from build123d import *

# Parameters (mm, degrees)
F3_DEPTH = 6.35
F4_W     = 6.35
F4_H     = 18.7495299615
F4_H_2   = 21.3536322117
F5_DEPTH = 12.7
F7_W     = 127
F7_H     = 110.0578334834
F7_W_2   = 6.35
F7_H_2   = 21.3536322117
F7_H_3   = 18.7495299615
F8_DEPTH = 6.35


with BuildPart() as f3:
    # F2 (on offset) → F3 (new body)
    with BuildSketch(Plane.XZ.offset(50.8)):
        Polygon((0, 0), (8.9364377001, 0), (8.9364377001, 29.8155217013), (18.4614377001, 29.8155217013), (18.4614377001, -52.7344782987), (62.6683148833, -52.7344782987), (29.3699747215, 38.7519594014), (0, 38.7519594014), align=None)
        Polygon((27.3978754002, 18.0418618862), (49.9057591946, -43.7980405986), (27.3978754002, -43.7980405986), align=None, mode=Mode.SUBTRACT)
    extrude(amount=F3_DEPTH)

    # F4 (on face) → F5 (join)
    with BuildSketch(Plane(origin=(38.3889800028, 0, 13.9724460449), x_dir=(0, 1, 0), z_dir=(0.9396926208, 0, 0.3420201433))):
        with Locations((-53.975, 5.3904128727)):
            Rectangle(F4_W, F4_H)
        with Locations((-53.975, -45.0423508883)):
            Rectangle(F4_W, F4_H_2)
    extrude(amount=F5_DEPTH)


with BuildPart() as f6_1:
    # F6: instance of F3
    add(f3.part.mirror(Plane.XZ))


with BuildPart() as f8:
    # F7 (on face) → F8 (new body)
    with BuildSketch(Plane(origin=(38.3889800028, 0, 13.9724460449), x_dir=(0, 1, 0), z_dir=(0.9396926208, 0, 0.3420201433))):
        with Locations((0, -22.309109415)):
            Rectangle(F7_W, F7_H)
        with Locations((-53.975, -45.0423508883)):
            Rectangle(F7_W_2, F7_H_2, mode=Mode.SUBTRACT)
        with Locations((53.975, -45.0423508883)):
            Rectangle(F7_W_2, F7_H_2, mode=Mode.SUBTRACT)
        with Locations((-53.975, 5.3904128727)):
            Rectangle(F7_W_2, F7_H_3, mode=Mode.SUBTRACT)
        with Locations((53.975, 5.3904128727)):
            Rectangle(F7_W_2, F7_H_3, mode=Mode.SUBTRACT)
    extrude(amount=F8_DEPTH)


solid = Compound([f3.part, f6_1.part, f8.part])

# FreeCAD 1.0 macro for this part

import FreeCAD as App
import Part
import Sketcher
from FreeCAD import Vector
Q = App.Units.Quantity

doc = App.newDocument("Part")
body = doc.addObject("PartDesign::Body", "Body")

# Sketch on XZ plane
sketch1 = doc.addObject("Sketcher::SketchObject", "Sketch")
body.addObject(sketch1)
sketch1.AttachmentSupport = (doc.XZ_Plane, [""])
sketch1.MapMode = "FlatFace"
sketch1.AttachmentOffset = App.Placement(Vector(0, 0, 2 * 25.4), App.Rotation())
sketch1.addGeometry([
    Part.LineSegment(Vector(0, 0, 0), Vector(9, 0, 0)),  # 0
    Part.LineSegment(Vector(9, 0, 0), Vector(9, 30, 0)),  # 1
    Part.LineSegment(Vector(9, 30, 0), Vector(18, 30, 0)),  # 2
    Part.LineSegment(Vector(18, 30, 0), Vector(18, -53, 0)),  # 3
    Part.LineSegment(Vector(18, -53, 0), Vector(63, -53, 0)),  # 4
    Part.LineSegment(Vector(63, -53, 0), Vector(29, 39, 0)),  # 5
    Part.LineSegment(Vector(29, 39, 0), Vector(0, 39, 0)),  # 6
    Part.LineSegment(Vector(0, 39, 0), Vector(0, 0, 0)),  # 7
    Part.LineSegment(Vector(27, -44, 0), Vector(27, 18, 0)),  # 8
    Part.LineSegment(Vector(27, 18, 0), Vector(50, -44, 0)),  # 9
    Part.LineSegment(Vector(50, -44, 0), Vector(27, -44, 0)),  # 10
], False)
sketch1.addConstraint([
    Sketcher.Constraint("Coincident", 0, 2, 1, 1),
    Sketcher.Constraint("Coincident", 1, 2, 2, 1),
    Sketcher.Constraint("Coincident", 2, 2, 3, 1),
    Sketcher.Constraint("Coincident", 3, 2, 4, 1),
    Sketcher.Constraint("Coincident", 4, 2, 5, 1),
    Sketcher.Constraint("Coincident", 5, 2, 6, 1),
    Sketcher.Constraint("Coincident", 6, 2, 7, 1),
    Sketcher.Constraint("Coincident", 7, 2, 0, 1),
    Sketcher.Constraint("Coincident", 8, 2, 9, 1),
    Sketcher.Constraint("Coincident", 9, 2, 10, 1),
    Sketcher.Constraint("Coincident", 10, 2, 8, 1),
    Sketcher.Constraint("Horizontal", 0),
    Sketcher.Constraint("Vertical", 1),
    Sketcher.Constraint("Horizontal", 2),
    Sketcher.Constraint("Vertical", 3),
    Sketcher.Constraint("Horizontal", 4),
    Sketcher.Constraint("Horizontal", 6),
    Sketcher.Constraint("Vertical", 7),
    Sketcher.Constraint("Vertical", 8),
    Sketcher.Constraint("Horizontal", 10),
    Sketcher.Constraint("Coincident", 7, 2, -1, 1),
    Sketcher.Constraint("Parallel", 5, 9),
    Sketcher.Constraint("Angle", 5, Q("110 deg")),
    Sketcher.Constraint("DistanceY", 3, 2, 3, 1, Q("3.25 in")),
    Sketcher.Constraint("DistanceX", 2, 1, 2, 2, Q("0.375 in")),
    Sketcher.Constraint("DistanceX", 10, 2, 4, 2, Q("1.3886 in")),
    Sketcher.Constraint("DistanceY", 1, 1, 1, 2, Q("29.815522 mm")),
    Sketcher.Constraint("DistanceY", 7, 2, 7, 1, Q("38.751959 mm")),
    Sketcher.Constraint("Distance", 9, Q("65.80865 mm")),
    Sketcher.Constraint("DistanceX", 0, 1, 0, 2, Q("8.936438 mm")),
    Sketcher.Constraint("DistanceX", 4, 1, 4, 2, Q("44.206877 mm")),
    Sketcher.Constraint("DistanceY", -1, 1, 8, 2, Q("18.041862 mm")),
])
pad1 = doc.addObject("PartDesign::Pad", "Pad")
body.addObject(pad1)
pad1.Profile = sketch1
pad1.Length = Q("0.25 in")

# Sketch on an angled plane
sketch2 = doc.addObject("Sketcher::SketchObject", "Sketch001")
body.addObject(sketch2)
sketch2.Placement = App.Placement(Vector(38.38898, 0, 13.972446), App.Rotation(Vector(0, 1, 0), Vector(-0.342020143, 0, 0.939692621), Vector(0.939692621, 0, 0.342020143), "ZXY"))
sketch2.addGeometry([
    Part.LineSegment(Vector(-57, 15, 0), Vector(-57, -4, 0)),  # 0
    Part.LineSegment(Vector(-57, -4, 0), Vector(-51, -4, 0)),  # 1
    Part.LineSegment(Vector(-51, -4, 0), Vector(-51, 15, 0)),  # 2
    Part.LineSegment(Vector(-51, 15, 0), Vector(-57, 15, 0)),  # 3
    Part.LineSegment(Vector(-57, -34, 0), Vector(-57, -56, 0)),  # 4
    Part.LineSegment(Vector(-57, -56, 0), Vector(-51, -56, 0)),  # 5
    Part.LineSegment(Vector(-51, -56, 0), Vector(-51, -34, 0)),  # 6
    Part.LineSegment(Vector(-51, -34, 0), Vector(-57, -34, 0)),  # 7
], False)
sketch2.addConstraint([
    Sketcher.Constraint("Coincident", 0, 2, 1, 1),
    Sketcher.Constraint("Coincident", 1, 2, 2, 1),
    Sketcher.Constraint("Coincident", 2, 2, 3, 1),
    Sketcher.Constraint("Coincident", 3, 2, 0, 1),
    Sketcher.Constraint("Coincident", 4, 2, 5, 1),
    Sketcher.Constraint("Coincident", 5, 2, 6, 1),
    Sketcher.Constraint("Coincident", 6, 2, 7, 1),
    Sketcher.Constraint("Coincident", 7, 2, 4, 1),
    Sketcher.Constraint("Vertical", 0),
    Sketcher.Constraint("Horizontal", 1),
    Sketcher.Constraint("Vertical", 2),
    Sketcher.Constraint("Horizontal", 3),
    Sketcher.Constraint("Vertical", 4),
    Sketcher.Constraint("Horizontal", 5),
    Sketcher.Constraint("Vertical", 6),
    Sketcher.Constraint("Horizontal", 7),
    Sketcher.Constraint("Vertical", 3, 2, 4, 2),
    Sketcher.Constraint("Vertical", 2, 2, 5, 2),
    Sketcher.Constraint("DistanceX", 1, 2, -1, 1, Q("2 in")),
    Sketcher.Constraint("DistanceX", 1, 1, 1, 2, Q("0.25 in")),
    Sketcher.Constraint("DistanceY", 0, 2, 0, 1, Q("18.74953 mm")),
    Sketcher.Constraint("DistanceY", 4, 2, 4, 1, Q("21.353632 mm")),
    Sketcher.Constraint("DistanceY", 0, 2, -1, 1, Q("3.984352 mm")),
    Sketcher.Constraint("DistanceY", 4, 2, -1, 1, Q("55.719167 mm")),
])
pad2 = doc.addObject("PartDesign::Pad", "Pad001")
body.addObject(pad2)
pad2.Profile = sketch2
pad2.Length = Q("0.5 in")
body2 = doc.addObject("PartDesign::Body", "Body001")
doc.recompute()

mirroring = doc.addObject("Part::Mirroring", "Mirroring")
mirroring.Source = body
mirroring.Base = Vector(0, 0, 0)
mirroring.Normal = Vector(0, -1, 0)
body2.BaseFeature = mirroring
doc.recompute()
body3 = doc.addObject("PartDesign::Body", "Body002")

# Sketch on an angled plane
sketch3 = doc.addObject("Sketcher::SketchObject", "Sketch002")
body3.addObject(sketch3)
sketch3.Placement = App.Placement(Vector(38.38898, 0, 13.972446), App.Rotation(Vector(0, 1, 0), Vector(-0.342020143, 0, 0.939692621), Vector(0.939692621, 0, 0.342020143), "ZXY"))
sketch3.addGeometry([
    Part.LineSegment(Vector(-64, 33, 0), Vector(-64, -77, 0)),  # 0
    Part.LineSegment(Vector(-64, -77, 0), Vector(64, -77, 0)),  # 1
    Part.LineSegment(Vector(64, -77, 0), Vector(64, 33, 0)),  # 2
    Part.LineSegment(Vector(64, 33, 0), Vector(-64, 33, 0)),  # 3
    Part.LineSegment(Vector(-51, -56, 0), Vector(-57, -56, 0)),  # 4
    Part.LineSegment(Vector(-57, -56, 0), Vector(-57, -34, 0)),  # 5
    Part.LineSegment(Vector(-57, -34, 0), Vector(-51, -34, 0)),  # 6
    Part.LineSegment(Vector(-51, -34, 0), Vector(-51, -56, 0)),  # 7
    Part.LineSegment(Vector(57, -56, 0), Vector(51, -56, 0)),  # 8
    Part.LineSegment(Vector(51, -56, 0), Vector(51, -34, 0)),  # 9
    Part.LineSegment(Vector(51, -34, 0), Vector(57, -34, 0)),  # 10
    Part.LineSegment(Vector(57, -34, 0), Vector(57, -56, 0)),  # 11
    Part.LineSegment(Vector(-51, -4, 0), Vector(-57, -4, 0)),  # 12
    Part.LineSegment(Vector(-57, -4, 0), Vector(-57, 15, 0)),  # 13
    Part.LineSegment(Vector(-57, 15, 0), Vector(-51, 15, 0)),  # 14
    Part.LineSegment(Vector(-51, 15, 0), Vector(-51, -4, 0)),  # 15
    Part.LineSegment(Vector(57, -4, 0), Vector(51, -4, 0)),  # 16
    Part.LineSegment(Vector(51, -4, 0), Vector(51, 15, 0)),  # 17
    Part.LineSegment(Vector(51, 15, 0), Vector(57, 15, 0)),  # 18
    Part.LineSegment(Vector(57, 15, 0), Vector(57, -4, 0)),  # 19
], False)
sketch3.addConstraint([
    Sketcher.Constraint("Coincident", 0, 2, 1, 1),
    Sketcher.Constraint("Coincident", 1, 2, 2, 1),
    Sketcher.Constraint("Coincident", 2, 2, 3, 1),
    Sketcher.Constraint("Coincident", 3, 2, 0, 1),
    Sketcher.Constraint("Coincident", 4, 2, 5, 1),
    Sketcher.Constraint("Coincident", 5, 2, 6, 1),
    Sketcher.Constraint("Coincident", 6, 2, 7, 1),
    Sketcher.Constraint("Coincident", 7, 2, 4, 1),
    Sketcher.Constraint("Coincident", 8, 2, 9, 1),
    Sketcher.Constraint("Coincident", 9, 2, 10, 1),
    Sketcher.Constraint("Coincident", 10, 2, 11, 1),
    Sketcher.Constraint("Coincident", 11, 2, 8, 1),
    Sketcher.Constraint("Coincident", 12, 2, 13, 1),
    Sketcher.Constraint("Coincident", 13, 2, 14, 1),
    Sketcher.Constraint("Coincident", 14, 2, 15, 1),
    Sketcher.Constraint("Coincident", 15, 2, 12, 1),
    Sketcher.Constraint("Coincident", 16, 2, 17, 1),
    Sketcher.Constraint("Coincident", 17, 2, 18, 1),
    Sketcher.Constraint("Coincident", 18, 2, 19, 1),
    Sketcher.Constraint("Coincident", 19, 2, 16, 1),
    Sketcher.Constraint("Vertical", 0),
    Sketcher.Constraint("Horizontal", 1),
    Sketcher.Constraint("Vertical", 2),
    Sketcher.Constraint("Horizontal", 3),
    Sketcher.Constraint("Horizontal", 4),
    Sketcher.Constraint("Vertical", 5),
    Sketcher.Constraint("Horizontal", 6),
    Sketcher.Constraint("Vertical", 7),
    Sketcher.Constraint("Horizontal", 8),
    Sketcher.Constraint("Vertical", 9),
    Sketcher.Constraint("Horizontal", 10),
    Sketcher.Constraint("Vertical", 11),
    Sketcher.Constraint("Horizontal", 12),
    Sketcher.Constraint("Vertical", 13),
    Sketcher.Constraint("Horizontal", 14),
    Sketcher.Constraint("Vertical", 15),
    Sketcher.Constraint("Horizontal", 16),
    Sketcher.Constraint("Vertical", 17),
    Sketcher.Constraint("Horizontal", 18),
    Sketcher.Constraint("Vertical", 19),
    Sketcher.Constraint("Symmetric", 7, 2, 8, 2, -2),
    Sketcher.Constraint("Symmetric", 5, 2, 10, 2, -2),
    Sketcher.Constraint("Symmetric", 15, 2, 16, 2, -2),
    Sketcher.Constraint("Symmetric", 13, 2, 18, 2, -2),
    Sketcher.Constraint("Vertical", 5, 2, 12, 2),
    Sketcher.Constraint("Vertical", 7, 2, 14, 2),
    Sketcher.Constraint("DistanceX", 1, 1, 1, 2, Q("5 in")),
    Sketcher.Constraint("DistanceX", 6, 2, -1, 1, Q("2 in")),
    Sketcher.Constraint("DistanceX", 4, 2, 4, 1, Q("0.25 in")),
    Sketcher.Constraint("DistanceX", 0, 2, -1, 1, Q("2.5 in")),
    Sketcher.Constraint("DistanceY", 13, 1, 13, 2, Q("18.74953 mm")),
    Sketcher.Constraint("DistanceY", 0, 2, 0, 1, Q("110.057834 mm")),
    Sketcher.Constraint("DistanceY", 5, 1, 5, 2, Q("21.353632 mm")),
    Sketcher.Constraint("DistanceY", 0, 2, 4, 2, Q("21.618859 mm")),
    Sketcher.Constraint("DistanceY", 12, 2, 3, 2, Q("36.704159 mm")),
    Sketcher.Constraint("DistanceY", 0, 2, -1, 1, Q("77.338026 mm")),
])
pad3 = doc.addObject("PartDesign::Pad", "Pad002")
body3.addObject(pad3)
pad3.Profile = sketch3
pad3.Length = Q("0.25 in")
mirroring.Visibility = False

doc.recompute()
